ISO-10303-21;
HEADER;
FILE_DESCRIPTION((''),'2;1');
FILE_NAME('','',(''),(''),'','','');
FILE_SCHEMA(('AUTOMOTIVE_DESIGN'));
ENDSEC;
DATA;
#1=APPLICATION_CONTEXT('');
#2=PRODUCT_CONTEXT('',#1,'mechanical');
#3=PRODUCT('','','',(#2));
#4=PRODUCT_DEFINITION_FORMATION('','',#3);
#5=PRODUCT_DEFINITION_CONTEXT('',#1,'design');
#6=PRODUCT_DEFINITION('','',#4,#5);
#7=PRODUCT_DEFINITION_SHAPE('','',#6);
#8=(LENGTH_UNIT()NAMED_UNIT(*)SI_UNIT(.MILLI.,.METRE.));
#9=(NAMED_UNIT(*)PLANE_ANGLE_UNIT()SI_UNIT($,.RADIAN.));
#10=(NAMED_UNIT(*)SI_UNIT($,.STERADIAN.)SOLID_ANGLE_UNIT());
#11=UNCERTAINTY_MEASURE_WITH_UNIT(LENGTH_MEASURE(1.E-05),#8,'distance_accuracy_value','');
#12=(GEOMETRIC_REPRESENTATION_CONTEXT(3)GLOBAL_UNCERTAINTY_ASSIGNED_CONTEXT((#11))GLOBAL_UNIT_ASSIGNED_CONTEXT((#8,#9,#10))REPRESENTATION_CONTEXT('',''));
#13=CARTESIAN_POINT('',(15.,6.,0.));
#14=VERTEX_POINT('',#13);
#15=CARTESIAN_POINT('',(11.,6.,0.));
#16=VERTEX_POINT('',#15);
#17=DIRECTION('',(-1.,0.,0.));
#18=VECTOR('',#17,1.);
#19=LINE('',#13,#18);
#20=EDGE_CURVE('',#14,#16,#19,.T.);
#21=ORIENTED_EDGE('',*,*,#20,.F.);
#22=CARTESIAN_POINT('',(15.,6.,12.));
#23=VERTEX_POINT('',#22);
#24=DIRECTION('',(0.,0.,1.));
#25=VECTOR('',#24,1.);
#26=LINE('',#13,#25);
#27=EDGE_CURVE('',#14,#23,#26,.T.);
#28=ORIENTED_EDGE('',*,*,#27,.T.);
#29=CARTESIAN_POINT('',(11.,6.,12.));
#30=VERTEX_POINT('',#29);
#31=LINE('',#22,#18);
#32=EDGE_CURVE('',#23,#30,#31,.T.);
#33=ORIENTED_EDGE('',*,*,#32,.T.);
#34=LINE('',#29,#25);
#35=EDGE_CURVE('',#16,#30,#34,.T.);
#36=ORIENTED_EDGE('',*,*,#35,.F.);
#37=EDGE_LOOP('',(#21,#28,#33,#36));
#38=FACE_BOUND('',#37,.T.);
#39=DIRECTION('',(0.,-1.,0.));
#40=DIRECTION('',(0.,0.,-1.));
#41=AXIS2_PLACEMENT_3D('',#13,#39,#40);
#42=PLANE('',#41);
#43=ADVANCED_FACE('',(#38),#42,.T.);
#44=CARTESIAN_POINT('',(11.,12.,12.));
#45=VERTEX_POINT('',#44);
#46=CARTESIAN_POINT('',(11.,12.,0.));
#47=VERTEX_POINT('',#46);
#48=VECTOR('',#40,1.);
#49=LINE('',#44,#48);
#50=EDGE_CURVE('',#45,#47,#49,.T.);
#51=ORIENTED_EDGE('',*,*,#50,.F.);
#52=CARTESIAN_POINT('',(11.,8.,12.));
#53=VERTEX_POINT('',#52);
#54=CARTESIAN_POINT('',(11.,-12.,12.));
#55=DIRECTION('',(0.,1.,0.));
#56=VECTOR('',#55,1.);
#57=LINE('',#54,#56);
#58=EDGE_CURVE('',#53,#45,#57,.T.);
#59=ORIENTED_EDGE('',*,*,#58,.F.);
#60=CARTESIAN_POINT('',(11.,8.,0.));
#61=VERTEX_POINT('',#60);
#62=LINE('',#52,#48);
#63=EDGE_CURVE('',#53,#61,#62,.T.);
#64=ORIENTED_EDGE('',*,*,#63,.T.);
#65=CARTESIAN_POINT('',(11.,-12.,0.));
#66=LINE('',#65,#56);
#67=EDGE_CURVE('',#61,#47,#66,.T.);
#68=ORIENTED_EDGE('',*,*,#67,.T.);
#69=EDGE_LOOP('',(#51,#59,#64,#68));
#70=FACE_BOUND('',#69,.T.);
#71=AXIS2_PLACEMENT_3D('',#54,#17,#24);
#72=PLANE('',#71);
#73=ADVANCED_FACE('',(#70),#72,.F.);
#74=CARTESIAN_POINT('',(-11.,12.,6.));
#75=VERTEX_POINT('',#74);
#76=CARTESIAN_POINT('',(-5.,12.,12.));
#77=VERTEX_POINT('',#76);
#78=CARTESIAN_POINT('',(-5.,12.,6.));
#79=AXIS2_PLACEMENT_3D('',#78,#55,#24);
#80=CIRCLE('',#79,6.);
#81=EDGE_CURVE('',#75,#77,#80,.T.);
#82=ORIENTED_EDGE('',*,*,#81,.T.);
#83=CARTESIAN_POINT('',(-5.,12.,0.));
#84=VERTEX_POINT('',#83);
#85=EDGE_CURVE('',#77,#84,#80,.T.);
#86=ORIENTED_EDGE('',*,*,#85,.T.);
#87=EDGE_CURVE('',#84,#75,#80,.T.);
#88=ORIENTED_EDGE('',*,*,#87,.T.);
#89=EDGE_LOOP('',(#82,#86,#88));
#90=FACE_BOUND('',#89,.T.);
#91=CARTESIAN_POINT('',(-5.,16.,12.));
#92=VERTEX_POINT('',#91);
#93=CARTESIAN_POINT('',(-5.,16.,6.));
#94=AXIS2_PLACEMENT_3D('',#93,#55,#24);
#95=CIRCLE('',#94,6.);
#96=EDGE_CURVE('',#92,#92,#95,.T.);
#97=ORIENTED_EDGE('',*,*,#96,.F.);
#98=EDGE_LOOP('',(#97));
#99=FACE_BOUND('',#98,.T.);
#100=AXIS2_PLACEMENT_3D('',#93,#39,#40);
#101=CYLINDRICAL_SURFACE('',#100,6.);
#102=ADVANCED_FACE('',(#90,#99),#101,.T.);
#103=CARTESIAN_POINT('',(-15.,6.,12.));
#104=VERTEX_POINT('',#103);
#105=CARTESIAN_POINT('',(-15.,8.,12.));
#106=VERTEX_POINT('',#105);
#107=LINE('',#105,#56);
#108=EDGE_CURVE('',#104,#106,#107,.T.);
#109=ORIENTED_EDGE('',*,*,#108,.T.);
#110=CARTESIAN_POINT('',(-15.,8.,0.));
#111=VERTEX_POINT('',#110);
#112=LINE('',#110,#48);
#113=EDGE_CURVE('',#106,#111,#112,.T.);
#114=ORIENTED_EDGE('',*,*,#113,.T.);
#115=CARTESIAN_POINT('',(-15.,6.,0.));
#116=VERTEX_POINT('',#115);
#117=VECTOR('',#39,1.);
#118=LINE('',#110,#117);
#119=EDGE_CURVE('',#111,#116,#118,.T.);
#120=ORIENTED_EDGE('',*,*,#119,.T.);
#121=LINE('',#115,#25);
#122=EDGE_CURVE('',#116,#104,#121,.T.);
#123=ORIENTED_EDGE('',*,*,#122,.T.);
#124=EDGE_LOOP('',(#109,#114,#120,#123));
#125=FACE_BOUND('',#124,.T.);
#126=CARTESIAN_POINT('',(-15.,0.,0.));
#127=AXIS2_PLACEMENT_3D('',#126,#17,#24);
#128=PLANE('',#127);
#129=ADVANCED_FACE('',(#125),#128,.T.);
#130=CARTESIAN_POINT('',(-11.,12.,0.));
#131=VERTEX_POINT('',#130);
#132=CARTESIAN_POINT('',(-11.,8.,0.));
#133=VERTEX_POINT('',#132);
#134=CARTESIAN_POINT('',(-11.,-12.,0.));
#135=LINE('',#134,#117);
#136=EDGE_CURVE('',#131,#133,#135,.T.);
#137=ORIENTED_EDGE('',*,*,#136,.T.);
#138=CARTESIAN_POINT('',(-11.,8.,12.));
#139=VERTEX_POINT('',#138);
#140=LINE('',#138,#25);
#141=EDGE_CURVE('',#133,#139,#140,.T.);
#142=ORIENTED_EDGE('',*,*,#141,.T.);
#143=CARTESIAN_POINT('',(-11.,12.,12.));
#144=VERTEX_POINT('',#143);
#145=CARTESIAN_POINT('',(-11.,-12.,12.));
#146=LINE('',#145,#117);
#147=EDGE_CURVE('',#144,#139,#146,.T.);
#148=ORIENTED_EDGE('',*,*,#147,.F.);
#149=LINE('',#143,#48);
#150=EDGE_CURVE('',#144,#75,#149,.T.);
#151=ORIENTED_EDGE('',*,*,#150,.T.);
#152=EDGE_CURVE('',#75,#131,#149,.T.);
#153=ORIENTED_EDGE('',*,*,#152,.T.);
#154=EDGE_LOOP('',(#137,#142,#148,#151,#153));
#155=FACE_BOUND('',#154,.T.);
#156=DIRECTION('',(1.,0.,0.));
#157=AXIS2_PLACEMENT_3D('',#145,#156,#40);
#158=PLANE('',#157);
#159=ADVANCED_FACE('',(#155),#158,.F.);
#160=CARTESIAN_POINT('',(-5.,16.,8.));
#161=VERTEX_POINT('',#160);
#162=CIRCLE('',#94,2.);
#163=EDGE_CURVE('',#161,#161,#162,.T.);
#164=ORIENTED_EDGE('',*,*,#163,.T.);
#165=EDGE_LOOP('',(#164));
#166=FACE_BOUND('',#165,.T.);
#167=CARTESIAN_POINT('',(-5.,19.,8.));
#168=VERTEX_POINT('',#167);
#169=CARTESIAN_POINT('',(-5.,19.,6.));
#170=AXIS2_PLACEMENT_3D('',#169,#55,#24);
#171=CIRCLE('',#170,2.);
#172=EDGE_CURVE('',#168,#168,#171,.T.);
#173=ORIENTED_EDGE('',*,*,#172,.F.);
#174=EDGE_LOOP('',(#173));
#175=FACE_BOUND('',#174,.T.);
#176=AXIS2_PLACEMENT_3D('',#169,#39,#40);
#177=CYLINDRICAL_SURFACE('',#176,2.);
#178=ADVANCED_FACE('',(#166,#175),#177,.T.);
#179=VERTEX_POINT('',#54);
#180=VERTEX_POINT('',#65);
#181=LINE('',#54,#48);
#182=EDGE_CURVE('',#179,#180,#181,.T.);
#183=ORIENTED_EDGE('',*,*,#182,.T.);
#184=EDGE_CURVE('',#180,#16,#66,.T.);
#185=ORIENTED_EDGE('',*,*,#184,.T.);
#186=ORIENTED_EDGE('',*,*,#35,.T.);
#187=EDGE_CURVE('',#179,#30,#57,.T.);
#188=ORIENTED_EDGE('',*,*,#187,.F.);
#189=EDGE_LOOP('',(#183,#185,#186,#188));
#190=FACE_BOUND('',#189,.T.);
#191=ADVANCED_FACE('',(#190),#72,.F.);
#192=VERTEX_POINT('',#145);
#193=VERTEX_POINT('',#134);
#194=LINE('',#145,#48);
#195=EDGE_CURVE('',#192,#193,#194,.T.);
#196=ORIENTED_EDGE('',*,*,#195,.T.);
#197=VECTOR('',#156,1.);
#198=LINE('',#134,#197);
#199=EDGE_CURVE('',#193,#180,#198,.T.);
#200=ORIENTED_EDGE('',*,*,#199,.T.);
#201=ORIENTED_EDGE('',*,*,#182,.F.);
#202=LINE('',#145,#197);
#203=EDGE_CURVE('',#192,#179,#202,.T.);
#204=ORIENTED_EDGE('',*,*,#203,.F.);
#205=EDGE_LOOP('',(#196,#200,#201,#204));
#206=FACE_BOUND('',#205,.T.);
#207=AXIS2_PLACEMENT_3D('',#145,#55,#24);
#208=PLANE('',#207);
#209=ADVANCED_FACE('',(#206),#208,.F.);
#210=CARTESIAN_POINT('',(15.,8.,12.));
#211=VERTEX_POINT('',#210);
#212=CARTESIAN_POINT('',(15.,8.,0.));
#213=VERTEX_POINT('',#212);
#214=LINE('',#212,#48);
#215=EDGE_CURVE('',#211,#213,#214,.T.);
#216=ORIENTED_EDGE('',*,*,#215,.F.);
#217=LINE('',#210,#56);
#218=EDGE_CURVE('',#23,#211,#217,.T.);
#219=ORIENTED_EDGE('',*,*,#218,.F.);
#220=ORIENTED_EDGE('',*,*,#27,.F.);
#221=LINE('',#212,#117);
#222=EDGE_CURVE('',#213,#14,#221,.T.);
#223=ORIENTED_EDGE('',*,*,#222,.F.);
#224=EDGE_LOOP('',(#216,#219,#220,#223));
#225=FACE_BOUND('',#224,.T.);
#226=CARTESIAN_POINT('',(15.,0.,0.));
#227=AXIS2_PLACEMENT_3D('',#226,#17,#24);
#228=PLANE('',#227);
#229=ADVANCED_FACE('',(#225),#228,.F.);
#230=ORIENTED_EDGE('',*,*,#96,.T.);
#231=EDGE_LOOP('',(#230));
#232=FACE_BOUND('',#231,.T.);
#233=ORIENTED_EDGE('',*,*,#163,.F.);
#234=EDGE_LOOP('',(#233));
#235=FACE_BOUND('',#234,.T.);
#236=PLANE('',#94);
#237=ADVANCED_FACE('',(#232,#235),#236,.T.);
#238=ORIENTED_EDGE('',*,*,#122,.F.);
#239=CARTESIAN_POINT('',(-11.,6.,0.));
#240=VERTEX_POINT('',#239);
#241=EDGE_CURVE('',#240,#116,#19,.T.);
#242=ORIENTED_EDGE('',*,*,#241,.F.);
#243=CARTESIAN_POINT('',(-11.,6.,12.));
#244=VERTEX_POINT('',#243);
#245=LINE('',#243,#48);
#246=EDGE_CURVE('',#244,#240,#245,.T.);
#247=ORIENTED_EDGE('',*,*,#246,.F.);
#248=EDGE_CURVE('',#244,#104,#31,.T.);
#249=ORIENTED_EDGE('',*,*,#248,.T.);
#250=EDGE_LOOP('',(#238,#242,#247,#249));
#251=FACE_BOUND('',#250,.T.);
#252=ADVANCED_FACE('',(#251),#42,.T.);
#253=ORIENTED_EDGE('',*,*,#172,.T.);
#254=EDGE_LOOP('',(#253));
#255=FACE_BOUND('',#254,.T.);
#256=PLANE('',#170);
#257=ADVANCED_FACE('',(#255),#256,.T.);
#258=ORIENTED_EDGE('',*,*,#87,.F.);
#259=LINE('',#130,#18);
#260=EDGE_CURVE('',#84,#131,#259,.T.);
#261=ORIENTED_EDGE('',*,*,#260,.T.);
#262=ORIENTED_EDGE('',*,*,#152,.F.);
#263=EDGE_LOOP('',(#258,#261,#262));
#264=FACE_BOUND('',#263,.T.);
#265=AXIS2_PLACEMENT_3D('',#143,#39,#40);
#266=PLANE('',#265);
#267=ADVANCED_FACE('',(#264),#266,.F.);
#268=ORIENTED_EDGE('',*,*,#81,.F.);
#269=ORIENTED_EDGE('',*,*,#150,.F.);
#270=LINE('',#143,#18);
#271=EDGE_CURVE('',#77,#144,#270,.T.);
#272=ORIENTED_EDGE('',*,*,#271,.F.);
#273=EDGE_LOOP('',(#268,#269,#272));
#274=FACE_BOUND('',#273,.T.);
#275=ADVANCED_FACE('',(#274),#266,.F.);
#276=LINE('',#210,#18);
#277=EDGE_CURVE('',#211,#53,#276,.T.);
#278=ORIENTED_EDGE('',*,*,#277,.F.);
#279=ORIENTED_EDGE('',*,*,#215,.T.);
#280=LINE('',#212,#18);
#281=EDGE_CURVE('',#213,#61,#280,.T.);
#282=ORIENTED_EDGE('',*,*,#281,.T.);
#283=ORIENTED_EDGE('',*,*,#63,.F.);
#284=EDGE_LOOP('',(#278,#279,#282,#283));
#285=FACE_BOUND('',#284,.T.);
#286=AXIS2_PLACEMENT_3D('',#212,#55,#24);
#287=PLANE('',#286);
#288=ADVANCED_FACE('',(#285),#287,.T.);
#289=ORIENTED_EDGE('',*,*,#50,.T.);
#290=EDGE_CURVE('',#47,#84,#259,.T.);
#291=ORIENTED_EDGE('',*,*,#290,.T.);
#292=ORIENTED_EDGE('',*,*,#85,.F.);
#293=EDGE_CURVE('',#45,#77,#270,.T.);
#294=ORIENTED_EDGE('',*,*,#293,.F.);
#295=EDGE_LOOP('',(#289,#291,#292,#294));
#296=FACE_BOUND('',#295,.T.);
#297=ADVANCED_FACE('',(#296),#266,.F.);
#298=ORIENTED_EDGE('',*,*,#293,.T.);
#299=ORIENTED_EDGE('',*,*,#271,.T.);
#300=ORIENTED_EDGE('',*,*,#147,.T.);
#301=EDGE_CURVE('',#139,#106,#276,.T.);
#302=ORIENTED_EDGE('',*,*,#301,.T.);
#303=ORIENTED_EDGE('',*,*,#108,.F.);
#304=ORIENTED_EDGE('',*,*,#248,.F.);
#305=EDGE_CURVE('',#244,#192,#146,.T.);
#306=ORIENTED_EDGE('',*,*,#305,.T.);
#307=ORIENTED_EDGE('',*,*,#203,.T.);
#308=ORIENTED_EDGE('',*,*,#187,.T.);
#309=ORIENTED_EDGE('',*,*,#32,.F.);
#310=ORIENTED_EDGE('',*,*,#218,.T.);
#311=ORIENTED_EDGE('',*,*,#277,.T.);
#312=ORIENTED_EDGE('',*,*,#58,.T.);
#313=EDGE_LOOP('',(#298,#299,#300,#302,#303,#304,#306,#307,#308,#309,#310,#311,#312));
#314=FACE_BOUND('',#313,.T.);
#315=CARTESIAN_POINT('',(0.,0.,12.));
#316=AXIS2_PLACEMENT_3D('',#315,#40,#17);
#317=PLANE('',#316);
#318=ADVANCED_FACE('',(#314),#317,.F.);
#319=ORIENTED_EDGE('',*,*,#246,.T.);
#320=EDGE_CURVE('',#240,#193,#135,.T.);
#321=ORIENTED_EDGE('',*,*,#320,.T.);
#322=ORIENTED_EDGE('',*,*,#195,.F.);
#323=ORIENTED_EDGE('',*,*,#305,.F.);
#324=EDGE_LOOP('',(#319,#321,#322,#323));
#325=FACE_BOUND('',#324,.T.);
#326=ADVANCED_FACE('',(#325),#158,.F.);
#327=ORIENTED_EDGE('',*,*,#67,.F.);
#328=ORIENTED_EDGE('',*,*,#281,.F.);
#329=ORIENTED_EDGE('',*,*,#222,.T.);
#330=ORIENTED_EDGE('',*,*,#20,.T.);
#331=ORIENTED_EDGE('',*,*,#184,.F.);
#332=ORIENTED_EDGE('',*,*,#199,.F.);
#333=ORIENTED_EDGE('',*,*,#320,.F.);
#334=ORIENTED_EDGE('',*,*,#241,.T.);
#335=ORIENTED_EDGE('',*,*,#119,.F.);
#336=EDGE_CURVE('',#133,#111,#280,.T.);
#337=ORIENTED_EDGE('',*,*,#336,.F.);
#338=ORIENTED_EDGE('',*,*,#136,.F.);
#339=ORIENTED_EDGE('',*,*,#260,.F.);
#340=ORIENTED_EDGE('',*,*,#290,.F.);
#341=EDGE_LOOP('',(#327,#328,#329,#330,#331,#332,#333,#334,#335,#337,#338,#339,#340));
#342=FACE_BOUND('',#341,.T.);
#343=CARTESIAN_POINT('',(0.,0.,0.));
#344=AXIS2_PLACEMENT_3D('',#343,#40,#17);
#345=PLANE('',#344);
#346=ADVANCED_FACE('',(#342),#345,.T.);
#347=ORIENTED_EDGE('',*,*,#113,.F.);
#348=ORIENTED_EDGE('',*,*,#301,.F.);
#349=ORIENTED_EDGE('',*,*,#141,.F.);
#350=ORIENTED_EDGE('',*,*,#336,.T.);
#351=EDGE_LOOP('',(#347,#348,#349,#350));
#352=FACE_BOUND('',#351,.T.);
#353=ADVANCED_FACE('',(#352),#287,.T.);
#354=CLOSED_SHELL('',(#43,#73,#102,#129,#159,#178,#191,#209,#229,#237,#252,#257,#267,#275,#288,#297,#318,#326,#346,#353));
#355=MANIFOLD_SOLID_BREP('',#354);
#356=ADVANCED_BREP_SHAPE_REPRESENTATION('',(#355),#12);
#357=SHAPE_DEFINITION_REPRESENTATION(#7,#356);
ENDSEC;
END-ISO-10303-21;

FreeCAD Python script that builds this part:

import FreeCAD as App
import Part
import Sketcher

V = App.Vector

doc = App.newDocument("Part")
params = doc.addObject("Spreadsheet::Sheet", "Params")
for row, (alias, value) in enumerate([
    ("sketch1_width", "22 mm"),
    ("sketch1_height", "24 mm"),
    ("pad1_length", "12 mm"),
    ("sketch2_width", "2 mm"),
    ("sketch2_height", "12 mm"),
    ("pad2_length", "30 mm"),
    ("sketch3_diameter", "12 mm"),
    ("pad3_length", "4 mm"),
    ("sketch4_diameter", "4 mm"),
    ("pad4_length", "3 mm"),
], start=1):
    params.set(f"A{row}", alias)
    params.set(f"B{row}", "=" + value)
    params.setAlias(f"B{row}", alias)

body = doc.addObject("PartDesign::Body", "Body")

# Sketch on XY plane
sketch1 = doc.addObject("Sketcher::SketchObject", "Sketch")
body.addObject(sketch1)
sketch1.AttachmentSupport = (doc.XY_Plane, [""])
sketch1.MapMode = "FlatFace"
sketch1.addGeometry(Part.LineSegment(V(-11, 12, 0), V(-11, -12, 0)), False)
sketch1.addGeometry(Part.LineSegment(V(-11, -12, 0), V(11, -12, 0)), False)
sketch1.addGeometry(Part.LineSegment(V(11, -12, 0), V(11, 12, 0)), False)
sketch1.addGeometry(Part.LineSegment(V(11, 12, 0), V(-11, 12, 0)), False)
sketch1.addConstraint(Sketcher.Constraint("Coincident", 0, 2, 1, 1))
sketch1.addConstraint(Sketcher.Constraint("Coincident", 1, 2, 2, 1))
sketch1.addConstraint(Sketcher.Constraint("Coincident", 2, 2, 3, 1))
sketch1.addConstraint(Sketcher.Constraint("Coincident", 3, 2, 0, 1))
sketch1.addConstraint(Sketcher.Constraint("Vertical", 0))
sketch1.addConstraint(Sketcher.Constraint("Horizontal", 1))
sketch1.addConstraint(Sketcher.Constraint("Vertical", 2))
sketch1.addConstraint(Sketcher.Constraint("Horizontal", 3))
sketch1.addConstraint(Sketcher.Constraint("Symmetric", 0, 2, 2, 2, -1, 1))
sketch1.addConstraint(Sketcher.Constraint("DistanceX", 1, 1, 1, 2, 22.0))
sketch1.addConstraint(Sketcher.Constraint("DistanceY", 0, 2, 0, 1, 24.0))
sketch1.setExpression("Constraints[9]", "Params.sketch1_width")
sketch1.setExpression("Constraints[10]", "Params.sketch1_height")
pad1 = doc.addObject("PartDesign::Pad", "Pad")
body.addObject(pad1)
pad1.Profile = sketch1
pad1.setExpression("Length", "Params.pad1_length")

# Sketch on YZ plane
sketch2 = doc.addObject("Sketcher::SketchObject", "Sketch001")
body.addObject(sketch2)
sketch2.AttachmentSupport = (doc.YZ_Plane, [""])
sketch2.MapMode = "FlatFace"
sketch2.AttachmentOffset = App.Placement(V(0, 0, -15), App.Rotation())
sketch2.addGeometry(Part.LineSegment(V(8, 0, 0), V(6, 0, 0)), False)
sketch2.addGeometry(Part.LineSegment(V(6, 0, 0), V(6, 12, 0)), False)
sketch2.addGeometry(Part.LineSegment(V(6, 12, 0), V(8, 12, 0)), False)
sketch2.addGeometry(Part.LineSegment(V(8, 12, 0), V(8, 0, 0)), False)
sketch2.addConstraint(Sketcher.Constraint("Coincident", 0, 2, 1, 1))
sketch2.addConstraint(Sketcher.Constraint("Coincident", 1, 2, 2, 1))
sketch2.addConstraint(Sketcher.Constraint("Coincident", 2, 2, 3, 1))
sketch2.addConstraint(Sketcher.Constraint("Coincident", 3, 2, 0, 1))
sketch2.addConstraint(Sketcher.Constraint("Horizontal", 0))
sketch2.addConstraint(Sketcher.Constraint("Vertical", 1))
sketch2.addConstraint(Sketcher.Constraint("Horizontal", 2))
sketch2.addConstraint(Sketcher.Constraint("Vertical", 3))
sketch2.addConstraint(Sketcher.Constraint("PointOnObject", 0, 2, -1))
sketch2.addConstraint(Sketcher.Constraint("DistanceX", 0, 2, 0, 1, 2.0))
sketch2.addConstraint(Sketcher.Constraint("DistanceY", 1, 1, 1, 2, 12.0))
sketch2.addConstraint(Sketcher.Constraint("DistanceX", -1, 1, 0, 2, 6.0))
sketch2.setExpression("Constraints[9]", "Params.sketch2_width")
sketch2.setExpression("Constraints[10]", "Params.sketch2_height")
pad2 = doc.addObject("PartDesign::Pad", "Pad001")
body.addObject(pad2)
pad2.Profile = sketch2
pad2.setExpression("Length", "Params.pad2_length")

# Sketch on XZ plane
sketch3 = doc.addObject("Sketcher::SketchObject", "Sketch002")
body.addObject(sketch3)
sketch3.AttachmentSupport = (doc.XZ_Plane, [""])
sketch3.MapMode = "FlatFace"
sketch3.AttachmentOffset = App.Placement(V(0, 0, -12), App.Rotation())
sketch3.addGeometry(Part.Circle(V(-5, 6, 0), V(0, 0, 1), 6), False)
sketch3.addConstraint(Sketcher.Constraint("Diameter", 0, 12.0))
sketch3.addConstraint(Sketcher.Constraint("DistanceX", 0, 3, -1, 1, 5.0))
sketch3.addConstraint(Sketcher.Constraint("DistanceY", -1, 1, 0, 3, 6.0))
sketch3.setExpression("Constraints[0]", "Params.sketch3_diameter")
pad3 = doc.addObject("PartDesign::Pad", "Pad002")
body.addObject(pad3)
pad3.Profile = sketch3
pad3.setExpression("Length", "Params.pad3_length")
pad3.Reversed = True

# Sketch on XZ plane
sketch4 = doc.addObject("Sketcher::SketchObject", "Sketch003")
body.addObject(sketch4)
sketch4.AttachmentSupport = (doc.XZ_Plane, [""])
sketch4.MapMode = "FlatFace"
sketch4.AttachmentOffset = App.Placement(V(0, 0, -16), App.Rotation())
sketch4.addGeometry(Part.Circle(V(-5, 6, 0), V(0, 0, 1), 2), False)
sketch4.addConstraint(Sketcher.Constraint("Diameter", 0, 4.0))
sketch4.addConstraint(Sketcher.Constraint("DistanceX", 0, 3, -1, 1, 5.0))
sketch4.addConstraint(Sketcher.Constraint("DistanceY", -1, 1, 0, 3, 6.0))
sketch4.setExpression("Constraints[0]", "Params.sketch4_diameter")
pad4 = doc.addObject("PartDesign::Pad", "Pad003")
body.addObject(pad4)
pad4.Profile = sketch4
pad4.setExpression("Length", "Params.pad4_length")
pad4.Reversed = True

doc.recompute()
